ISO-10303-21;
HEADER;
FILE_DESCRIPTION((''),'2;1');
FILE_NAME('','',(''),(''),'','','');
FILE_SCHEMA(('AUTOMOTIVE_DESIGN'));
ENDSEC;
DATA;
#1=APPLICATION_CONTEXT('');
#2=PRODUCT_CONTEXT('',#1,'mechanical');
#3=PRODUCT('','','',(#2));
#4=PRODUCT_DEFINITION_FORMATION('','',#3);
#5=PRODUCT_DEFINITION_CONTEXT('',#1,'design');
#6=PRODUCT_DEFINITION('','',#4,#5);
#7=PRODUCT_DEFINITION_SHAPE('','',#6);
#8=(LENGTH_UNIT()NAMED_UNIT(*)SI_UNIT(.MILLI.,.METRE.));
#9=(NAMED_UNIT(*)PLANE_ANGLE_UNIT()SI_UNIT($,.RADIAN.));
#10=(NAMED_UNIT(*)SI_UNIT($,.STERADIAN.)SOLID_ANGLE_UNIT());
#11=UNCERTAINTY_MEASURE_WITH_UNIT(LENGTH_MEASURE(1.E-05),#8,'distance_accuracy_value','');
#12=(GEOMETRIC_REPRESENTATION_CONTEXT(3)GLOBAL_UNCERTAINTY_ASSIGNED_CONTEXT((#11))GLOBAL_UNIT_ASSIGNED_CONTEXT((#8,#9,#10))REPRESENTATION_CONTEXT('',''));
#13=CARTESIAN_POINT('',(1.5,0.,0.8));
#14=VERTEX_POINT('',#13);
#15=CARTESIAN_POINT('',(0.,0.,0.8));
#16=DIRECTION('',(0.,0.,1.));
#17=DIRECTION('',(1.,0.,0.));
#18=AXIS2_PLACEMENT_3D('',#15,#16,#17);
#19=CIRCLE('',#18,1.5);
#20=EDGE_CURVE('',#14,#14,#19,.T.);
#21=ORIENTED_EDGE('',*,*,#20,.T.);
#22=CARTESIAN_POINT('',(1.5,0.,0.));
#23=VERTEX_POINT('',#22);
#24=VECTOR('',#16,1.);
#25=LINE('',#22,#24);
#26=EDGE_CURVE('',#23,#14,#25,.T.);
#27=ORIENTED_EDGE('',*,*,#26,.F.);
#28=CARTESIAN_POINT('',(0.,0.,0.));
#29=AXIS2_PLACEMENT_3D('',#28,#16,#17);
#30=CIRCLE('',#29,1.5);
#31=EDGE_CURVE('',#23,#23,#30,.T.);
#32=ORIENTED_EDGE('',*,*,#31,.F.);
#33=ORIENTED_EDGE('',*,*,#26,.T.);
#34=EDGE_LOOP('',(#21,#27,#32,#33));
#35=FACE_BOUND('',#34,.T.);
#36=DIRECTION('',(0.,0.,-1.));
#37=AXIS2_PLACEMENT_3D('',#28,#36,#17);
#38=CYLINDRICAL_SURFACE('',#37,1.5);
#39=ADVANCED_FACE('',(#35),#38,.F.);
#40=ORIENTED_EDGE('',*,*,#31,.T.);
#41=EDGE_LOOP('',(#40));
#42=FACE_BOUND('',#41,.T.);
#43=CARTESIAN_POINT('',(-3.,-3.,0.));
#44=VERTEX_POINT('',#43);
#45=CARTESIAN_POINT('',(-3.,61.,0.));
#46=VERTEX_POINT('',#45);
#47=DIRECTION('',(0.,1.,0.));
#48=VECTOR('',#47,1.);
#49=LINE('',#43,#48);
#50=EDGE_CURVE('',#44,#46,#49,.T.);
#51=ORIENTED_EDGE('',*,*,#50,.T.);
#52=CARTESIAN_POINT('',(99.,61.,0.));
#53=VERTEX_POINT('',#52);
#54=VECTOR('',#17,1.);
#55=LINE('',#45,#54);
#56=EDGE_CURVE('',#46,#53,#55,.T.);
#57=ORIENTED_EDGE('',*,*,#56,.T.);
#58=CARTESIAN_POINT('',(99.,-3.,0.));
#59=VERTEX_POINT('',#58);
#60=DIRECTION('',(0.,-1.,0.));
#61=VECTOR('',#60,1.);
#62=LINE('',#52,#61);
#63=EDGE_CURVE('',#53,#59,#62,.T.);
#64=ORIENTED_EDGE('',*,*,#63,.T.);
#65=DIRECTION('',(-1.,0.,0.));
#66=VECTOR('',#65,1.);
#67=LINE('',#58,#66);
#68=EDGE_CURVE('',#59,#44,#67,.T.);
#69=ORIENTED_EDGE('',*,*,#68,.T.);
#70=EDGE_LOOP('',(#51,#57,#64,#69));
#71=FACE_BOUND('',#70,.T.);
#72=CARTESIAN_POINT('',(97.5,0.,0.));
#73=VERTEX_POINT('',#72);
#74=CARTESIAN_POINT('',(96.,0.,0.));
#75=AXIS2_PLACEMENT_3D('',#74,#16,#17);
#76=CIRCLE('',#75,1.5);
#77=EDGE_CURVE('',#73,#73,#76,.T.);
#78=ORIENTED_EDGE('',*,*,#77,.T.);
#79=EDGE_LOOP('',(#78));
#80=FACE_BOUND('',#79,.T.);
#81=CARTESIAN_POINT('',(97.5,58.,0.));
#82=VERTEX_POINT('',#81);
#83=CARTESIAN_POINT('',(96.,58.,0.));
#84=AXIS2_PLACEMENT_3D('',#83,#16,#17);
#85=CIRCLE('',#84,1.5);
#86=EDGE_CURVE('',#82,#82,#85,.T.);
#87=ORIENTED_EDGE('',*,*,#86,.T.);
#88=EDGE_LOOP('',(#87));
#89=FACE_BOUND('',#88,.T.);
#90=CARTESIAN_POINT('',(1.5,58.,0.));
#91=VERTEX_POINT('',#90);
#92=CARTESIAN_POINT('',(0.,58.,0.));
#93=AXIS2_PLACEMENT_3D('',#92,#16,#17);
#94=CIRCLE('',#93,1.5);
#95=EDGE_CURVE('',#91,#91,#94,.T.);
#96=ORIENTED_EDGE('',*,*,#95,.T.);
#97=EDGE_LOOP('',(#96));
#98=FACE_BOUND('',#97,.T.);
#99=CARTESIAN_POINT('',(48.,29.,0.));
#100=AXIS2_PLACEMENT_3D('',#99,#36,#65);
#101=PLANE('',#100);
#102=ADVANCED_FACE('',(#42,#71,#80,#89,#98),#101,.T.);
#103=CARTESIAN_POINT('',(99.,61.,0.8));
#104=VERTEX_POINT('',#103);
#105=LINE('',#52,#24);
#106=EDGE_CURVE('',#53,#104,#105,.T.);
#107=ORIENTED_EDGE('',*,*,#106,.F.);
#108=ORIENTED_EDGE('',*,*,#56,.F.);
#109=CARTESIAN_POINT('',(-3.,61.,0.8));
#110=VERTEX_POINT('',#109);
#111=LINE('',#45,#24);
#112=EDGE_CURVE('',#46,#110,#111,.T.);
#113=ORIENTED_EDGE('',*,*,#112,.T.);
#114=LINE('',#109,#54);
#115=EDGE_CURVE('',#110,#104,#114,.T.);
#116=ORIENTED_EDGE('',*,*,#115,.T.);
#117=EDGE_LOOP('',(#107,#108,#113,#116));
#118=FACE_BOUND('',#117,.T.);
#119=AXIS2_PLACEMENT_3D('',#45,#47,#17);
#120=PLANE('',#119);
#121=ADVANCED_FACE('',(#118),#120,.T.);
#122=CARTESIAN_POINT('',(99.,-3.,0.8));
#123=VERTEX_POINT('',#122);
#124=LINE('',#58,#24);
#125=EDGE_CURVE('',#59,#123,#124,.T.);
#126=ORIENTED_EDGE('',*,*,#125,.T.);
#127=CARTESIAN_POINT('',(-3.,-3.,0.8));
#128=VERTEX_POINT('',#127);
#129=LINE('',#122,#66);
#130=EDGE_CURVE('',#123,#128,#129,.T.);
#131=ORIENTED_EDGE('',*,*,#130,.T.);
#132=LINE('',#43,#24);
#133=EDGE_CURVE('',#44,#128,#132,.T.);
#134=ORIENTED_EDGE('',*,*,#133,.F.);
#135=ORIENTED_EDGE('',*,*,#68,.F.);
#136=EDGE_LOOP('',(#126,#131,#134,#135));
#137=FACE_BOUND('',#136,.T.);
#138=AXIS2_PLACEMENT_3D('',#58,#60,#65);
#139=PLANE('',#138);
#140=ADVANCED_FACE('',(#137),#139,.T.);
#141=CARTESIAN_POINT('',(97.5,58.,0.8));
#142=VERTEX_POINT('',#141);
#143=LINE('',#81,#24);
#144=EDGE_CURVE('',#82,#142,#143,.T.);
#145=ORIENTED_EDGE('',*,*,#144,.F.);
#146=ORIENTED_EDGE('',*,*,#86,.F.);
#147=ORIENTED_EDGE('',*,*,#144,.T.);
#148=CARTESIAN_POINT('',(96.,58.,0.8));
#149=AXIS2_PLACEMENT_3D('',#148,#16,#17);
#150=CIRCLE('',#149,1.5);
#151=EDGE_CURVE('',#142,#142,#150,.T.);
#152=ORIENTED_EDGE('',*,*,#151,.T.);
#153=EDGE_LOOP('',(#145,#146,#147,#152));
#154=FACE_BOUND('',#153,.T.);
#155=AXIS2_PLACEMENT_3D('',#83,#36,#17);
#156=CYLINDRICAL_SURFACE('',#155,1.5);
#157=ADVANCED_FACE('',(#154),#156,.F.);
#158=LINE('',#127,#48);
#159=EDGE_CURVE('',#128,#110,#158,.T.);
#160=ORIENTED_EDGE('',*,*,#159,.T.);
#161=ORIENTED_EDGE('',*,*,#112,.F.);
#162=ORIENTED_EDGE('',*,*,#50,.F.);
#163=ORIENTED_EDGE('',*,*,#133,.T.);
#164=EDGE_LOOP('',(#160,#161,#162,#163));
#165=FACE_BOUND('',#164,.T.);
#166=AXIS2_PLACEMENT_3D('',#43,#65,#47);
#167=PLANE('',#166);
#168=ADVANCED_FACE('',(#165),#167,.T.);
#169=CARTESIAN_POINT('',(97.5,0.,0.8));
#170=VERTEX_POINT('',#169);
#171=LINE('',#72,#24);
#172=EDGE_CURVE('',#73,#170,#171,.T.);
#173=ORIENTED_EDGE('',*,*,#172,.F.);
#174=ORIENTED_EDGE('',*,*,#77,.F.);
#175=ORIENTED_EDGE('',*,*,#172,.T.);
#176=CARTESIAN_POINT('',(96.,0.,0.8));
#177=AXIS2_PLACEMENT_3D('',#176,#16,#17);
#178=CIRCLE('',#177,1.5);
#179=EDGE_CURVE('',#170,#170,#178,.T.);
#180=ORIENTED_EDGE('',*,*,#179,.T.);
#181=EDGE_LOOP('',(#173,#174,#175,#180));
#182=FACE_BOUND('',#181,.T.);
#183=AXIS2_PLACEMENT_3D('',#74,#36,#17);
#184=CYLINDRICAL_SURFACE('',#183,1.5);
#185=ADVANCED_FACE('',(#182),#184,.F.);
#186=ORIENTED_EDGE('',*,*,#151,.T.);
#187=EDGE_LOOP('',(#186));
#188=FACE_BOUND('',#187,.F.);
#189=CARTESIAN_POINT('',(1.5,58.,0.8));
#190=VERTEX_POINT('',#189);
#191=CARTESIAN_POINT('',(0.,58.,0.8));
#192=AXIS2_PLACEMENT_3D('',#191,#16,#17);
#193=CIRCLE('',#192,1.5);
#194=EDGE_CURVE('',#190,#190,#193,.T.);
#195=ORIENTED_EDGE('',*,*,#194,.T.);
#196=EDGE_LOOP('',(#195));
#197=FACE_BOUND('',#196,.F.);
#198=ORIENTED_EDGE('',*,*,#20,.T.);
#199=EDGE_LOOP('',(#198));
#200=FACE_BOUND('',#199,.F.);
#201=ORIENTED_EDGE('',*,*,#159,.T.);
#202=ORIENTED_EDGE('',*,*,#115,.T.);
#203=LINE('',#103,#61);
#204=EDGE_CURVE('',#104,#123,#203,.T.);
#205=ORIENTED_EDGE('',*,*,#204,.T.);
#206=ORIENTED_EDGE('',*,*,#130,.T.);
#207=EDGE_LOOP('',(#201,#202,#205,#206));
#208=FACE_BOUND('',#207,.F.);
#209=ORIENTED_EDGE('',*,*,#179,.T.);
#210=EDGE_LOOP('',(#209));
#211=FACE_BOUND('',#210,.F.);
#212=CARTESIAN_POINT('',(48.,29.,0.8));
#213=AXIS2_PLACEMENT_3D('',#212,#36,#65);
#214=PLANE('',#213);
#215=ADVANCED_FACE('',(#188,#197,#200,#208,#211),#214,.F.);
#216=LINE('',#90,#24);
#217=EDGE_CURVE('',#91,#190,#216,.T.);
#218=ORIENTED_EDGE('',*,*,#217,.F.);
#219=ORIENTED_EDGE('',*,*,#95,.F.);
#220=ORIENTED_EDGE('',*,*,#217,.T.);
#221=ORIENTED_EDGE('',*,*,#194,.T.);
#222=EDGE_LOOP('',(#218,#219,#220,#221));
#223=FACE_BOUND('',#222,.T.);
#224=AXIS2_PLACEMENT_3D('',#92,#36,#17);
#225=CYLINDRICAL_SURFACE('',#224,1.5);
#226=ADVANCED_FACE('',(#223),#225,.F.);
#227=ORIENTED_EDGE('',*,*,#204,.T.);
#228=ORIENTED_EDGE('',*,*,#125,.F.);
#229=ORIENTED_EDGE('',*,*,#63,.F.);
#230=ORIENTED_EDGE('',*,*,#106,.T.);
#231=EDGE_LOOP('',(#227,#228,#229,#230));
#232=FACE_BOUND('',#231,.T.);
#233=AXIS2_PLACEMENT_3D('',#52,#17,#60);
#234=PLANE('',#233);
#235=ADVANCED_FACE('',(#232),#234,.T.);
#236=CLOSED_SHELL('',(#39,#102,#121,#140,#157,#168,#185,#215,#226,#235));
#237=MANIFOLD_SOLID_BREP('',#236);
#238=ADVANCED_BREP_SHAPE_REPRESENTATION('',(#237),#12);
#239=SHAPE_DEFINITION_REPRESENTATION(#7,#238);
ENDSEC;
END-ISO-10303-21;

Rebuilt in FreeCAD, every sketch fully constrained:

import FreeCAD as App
import Part
import Sketcher

doc = App.newDocument("Part")
params = doc.addObject("Spreadsheet::Sheet", "Params")
for row, (alias, value) in enumerate([
    ("sketch1_diameter", "3 mm"),
    ("sketch1_width", "102 mm"),
    ("sketch1_height", "64 mm"),
    ("pad1_length", "0.8 mm"),
], start=1):
    params.set(f"A{row}", alias)
    params.set(f"B{row}", "=" + value)
    params.setAlias(f"B{row}", alias)

body = doc.addObject("PartDesign::Body", "Body")

# Sketch on XY plane
sketch1 = body.newObject("Sketcher::SketchObject", "Sketch")
sketch1.AttachmentSupport = (doc.getObject("XY_Plane"), [""])
sketch1.MapMode = "FlatFace"
sketch1.addGeometry([
    Part.LineSegment(App.Vector(-3, 61, 0), App.Vector(-3, -3, 0)),  # 0
    Part.LineSegment(App.Vector(-3, -3, 0), App.Vector(99, -3, 0)),  # 1
    Part.LineSegment(App.Vector(99, -3, 0), App.Vector(99, 61, 0)),  # 2
    Part.LineSegment(App.Vector(99, 61, 0), App.Vector(-3, 61, 0)),  # 3
    Part.Circle(App.Vector(0, 0, 0), App.Vector(0, 0, 1), 1.5),  # 4
    Part.Circle(App.Vector(96, 0, 0), App.Vector(0, 0, 1), 1.5),  # 5
    Part.Circle(App.Vector(0, 58, 0), App.Vector(0, 0, 1), 1.5),  # 6
    Part.Circle(App.Vector(96, 58, 0), App.Vector(0, 0, 1), 1.5),  # 7
], False)
sketch1.addConstraint([
    Sketcher.Constraint("Coincident", 0, 2, 1, 1),
    Sketcher.Constraint("Coincident", 1, 2, 2, 1),
    Sketcher.Constraint("Coincident", 2, 2, 3, 1),
    Sketcher.Constraint("Coincident", 3, 2, 0, 1),
    Sketcher.Constraint("Vertical", 0),
    Sketcher.Constraint("Horizontal", 1),
    Sketcher.Constraint("Vertical", 2),
    Sketcher.Constraint("Horizontal", 3),
    Sketcher.Constraint("Coincident", 4, 3, -1, 1),
    Sketcher.Constraint("Equal", 4, 5),
    Sketcher.Constraint("Equal", 5, 6),
    Sketcher.Constraint("Equal", 6, 7),
    Sketcher.Constraint("PointOnObject", 5, 3, -1),
    Sketcher.Constraint("PointOnObject", 6, 3, -2),
    Sketcher.Constraint("Horizontal", 6, 3, 7, 3),
    Sketcher.Constraint("Vertical", 5, 3, 7, 3),
    Sketcher.Constraint("Diameter", 4, 3.0),
    Sketcher.Constraint("DistanceX", 1, 1, 1, 2, 102.0),
    Sketcher.Constraint("DistanceY", 0, 2, 0, 1, 64.0),
    Sketcher.Constraint("DistanceX", -1, 1, 5, 3, 96.0),
    Sketcher.Constraint("DistanceY", -1, 1, 6, 3, 58.0),
    Sketcher.Constraint("DistanceX", 0, 2, -1, 1, 3.0),
    Sketcher.Constraint("DistanceY", 0, 2, -1, 1, 3.0),
])
sketch1.setExpression("Constraints[16]", "Params.sketch1_diameter")
sketch1.setExpression("Constraints[17]", "Params.sketch1_width")
sketch1.setExpression("Constraints[18]", "Params.sketch1_height")
pad1 = body.newObject("PartDesign::Pad", "Pad")
pad1.Profile = sketch1
pad1.setExpression("Length", "Params.pad1_length")

doc.recompute()
